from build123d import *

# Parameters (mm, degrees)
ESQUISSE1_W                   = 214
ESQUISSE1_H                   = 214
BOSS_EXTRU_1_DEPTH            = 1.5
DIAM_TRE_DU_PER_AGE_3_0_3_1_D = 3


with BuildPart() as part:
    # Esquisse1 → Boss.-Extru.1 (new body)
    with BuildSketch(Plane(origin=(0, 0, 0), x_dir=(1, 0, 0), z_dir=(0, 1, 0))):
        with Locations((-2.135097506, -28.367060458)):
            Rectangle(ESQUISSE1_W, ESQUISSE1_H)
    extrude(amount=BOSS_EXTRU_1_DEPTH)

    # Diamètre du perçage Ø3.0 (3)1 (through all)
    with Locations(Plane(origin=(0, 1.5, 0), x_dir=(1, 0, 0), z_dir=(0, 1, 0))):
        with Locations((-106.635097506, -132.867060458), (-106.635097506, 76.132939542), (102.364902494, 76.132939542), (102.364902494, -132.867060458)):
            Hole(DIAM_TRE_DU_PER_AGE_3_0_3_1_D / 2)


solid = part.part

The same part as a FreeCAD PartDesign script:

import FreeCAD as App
import Part
import Sketcher
Q = App.Units.Quantity

doc = App.newDocument("Part")
body = doc.addObject("PartDesign::Body", "Body")

sketch1 = body.newObject("Sketcher::SketchObject", "Sketch")
sketch1.AttachmentSupport = (doc.getObject("XZ_Plane"), [""])
sketch1.MapMode = "FlatFace"
sketch1.addGeometry(Part.LineSegment(App.Vector(-109.135098, -78.63294, 0), App.Vector(-109.135098, 135.36706, 0)), False)
sketch1.addGeometry(Part.LineSegment(App.Vector(-109.135098, 135.36706, 0), App.Vector(104.864902, 135.36706, 0)), False)
sketch1.addGeometry(Part.LineSegment(App.Vector(104.864902, 135.36706, 0), App.Vector(104.864902, -78.63294, 0)), False)
sketch1.addGeometry(Part.LineSegment(App.Vector(104.864902, -78.63294, 0), App.Vector(-109.135098, -78.63294, 0)), False)
sketch1.addConstraint(Sketcher.Constraint("Coincident", 0, 2, 1, 1))
sketch1.addConstraint(Sketcher.Constraint("Coincident", 1, 2, 2, 1))
sketch1.addConstraint(Sketcher.Constraint("Coincident", 2, 2, 3, 1))
sketch1.addConstraint(Sketcher.Constraint("Coincident", 3, 2, 0, 1))
sketch1.addConstraint(Sketcher.Constraint("Vertical", 0))
sketch1.addConstraint(Sketcher.Constraint("Horizontal", 1))
sketch1.addConstraint(Sketcher.Constraint("Vertical", 2))
sketch1.addConstraint(Sketcher.Constraint("Horizontal", 3))
sketch1.addConstraint(Sketcher.Constraint("Equal", 3, 0))
sketch1.addConstraint(Sketcher.Constraint("DistanceX", 1, 1, 1, 2, Q("214 mm")))
sketch1.addConstraint(Sketcher.Constraint("DistanceY", -1, 1, 0, 2, Q("135.36706 mm")))
sketch1.addConstraint(Sketcher.Constraint("DistanceX", 0, 2, -1, 1, Q("109.135098 mm")))
pad1 = body.newObject("PartDesign::Pad", "Pad")
pad1.Profile = sketch1
pad1.Length = 1.5
pad1.Reversed = True

sketch2 = body.newObject("Sketcher::SketchObject", "Sketch001")
sketch2.AttachmentSupport = (doc.getObject("XZ_Plane"), [""])
sketch2.MapMode = "FlatFace"
sketch2.AttachmentOffset = App.Placement(App.Vector(0, 0, -1.5), App.Rotation())
sketch2.addGeometry(Part.Circle(App.Vector(-106.635098, 132.86706, 0), App.Vector(0, 0, 1), 1.5), False)
sketch2.addGeometry(Part.Circle(App.Vector(-106.635098, -76.13294, 0), App.Vector(0, 0, 1), 1.5), False)
sketch2.addGeometry(Part.Circle(App.Vector(102.364902, -76.13294, 0), App.Vector(0, 0, 1), 1.5), False)
sketch2.addGeometry(Part.Circle(App.Vector(102.364902, 132.86706, 0), App.Vector(0, 0, 1), 1.5), False)
sketch2.addConstraint(Sketcher.Constraint("Equal", 0, 1))
sketch2.addConstraint(Sketcher.Constraint("Equal", 1, 2))
sketch2.addConstraint(Sketcher.Constraint("Equal", 2, 3))
sketch2.addConstraint(Sketcher.Constraint("Horizontal", 1, 3, 2, 3))
sketch2.addConstraint(Sketcher.Constraint("Horizontal", 0, 3, 3, 3))
sketch2.addConstraint(Sketcher.Constraint("Vertical", 0, 3, 1, 3))
sketch2.addConstraint(Sketcher.Constraint("Vertical", 2, 3, 3, 3))
sketch2.addConstraint(Sketcher.Constraint("Diameter", 0, Q("3 mm")))
sketch2.addConstraint(Sketcher.Constraint("DistanceY", 1, 3, 0, 3, Q("209 mm")))
sketch2.addConstraint(Sketcher.Constraint("DistanceX", 1, 3, 2, 3, Q("209 mm")))
sketch2.addConstraint(Sketcher.Constraint("DistanceY", -1, 1, 0, 3, Q("132.86706 mm")))
sketch2.addConstraint(Sketcher.Constraint("DistanceX", 0, 3, -1, 1, Q("106.635098 mm")))
doc.recompute()
hole = body.newObject("PartDesign::Hole", "Hole")
hole.Profile = sketch2
hole.ThreadType = "None"
hole.Diameter = 3
hole.DepthType = "ThroughAll"
hole.Reversed = True

doc.recompute()
